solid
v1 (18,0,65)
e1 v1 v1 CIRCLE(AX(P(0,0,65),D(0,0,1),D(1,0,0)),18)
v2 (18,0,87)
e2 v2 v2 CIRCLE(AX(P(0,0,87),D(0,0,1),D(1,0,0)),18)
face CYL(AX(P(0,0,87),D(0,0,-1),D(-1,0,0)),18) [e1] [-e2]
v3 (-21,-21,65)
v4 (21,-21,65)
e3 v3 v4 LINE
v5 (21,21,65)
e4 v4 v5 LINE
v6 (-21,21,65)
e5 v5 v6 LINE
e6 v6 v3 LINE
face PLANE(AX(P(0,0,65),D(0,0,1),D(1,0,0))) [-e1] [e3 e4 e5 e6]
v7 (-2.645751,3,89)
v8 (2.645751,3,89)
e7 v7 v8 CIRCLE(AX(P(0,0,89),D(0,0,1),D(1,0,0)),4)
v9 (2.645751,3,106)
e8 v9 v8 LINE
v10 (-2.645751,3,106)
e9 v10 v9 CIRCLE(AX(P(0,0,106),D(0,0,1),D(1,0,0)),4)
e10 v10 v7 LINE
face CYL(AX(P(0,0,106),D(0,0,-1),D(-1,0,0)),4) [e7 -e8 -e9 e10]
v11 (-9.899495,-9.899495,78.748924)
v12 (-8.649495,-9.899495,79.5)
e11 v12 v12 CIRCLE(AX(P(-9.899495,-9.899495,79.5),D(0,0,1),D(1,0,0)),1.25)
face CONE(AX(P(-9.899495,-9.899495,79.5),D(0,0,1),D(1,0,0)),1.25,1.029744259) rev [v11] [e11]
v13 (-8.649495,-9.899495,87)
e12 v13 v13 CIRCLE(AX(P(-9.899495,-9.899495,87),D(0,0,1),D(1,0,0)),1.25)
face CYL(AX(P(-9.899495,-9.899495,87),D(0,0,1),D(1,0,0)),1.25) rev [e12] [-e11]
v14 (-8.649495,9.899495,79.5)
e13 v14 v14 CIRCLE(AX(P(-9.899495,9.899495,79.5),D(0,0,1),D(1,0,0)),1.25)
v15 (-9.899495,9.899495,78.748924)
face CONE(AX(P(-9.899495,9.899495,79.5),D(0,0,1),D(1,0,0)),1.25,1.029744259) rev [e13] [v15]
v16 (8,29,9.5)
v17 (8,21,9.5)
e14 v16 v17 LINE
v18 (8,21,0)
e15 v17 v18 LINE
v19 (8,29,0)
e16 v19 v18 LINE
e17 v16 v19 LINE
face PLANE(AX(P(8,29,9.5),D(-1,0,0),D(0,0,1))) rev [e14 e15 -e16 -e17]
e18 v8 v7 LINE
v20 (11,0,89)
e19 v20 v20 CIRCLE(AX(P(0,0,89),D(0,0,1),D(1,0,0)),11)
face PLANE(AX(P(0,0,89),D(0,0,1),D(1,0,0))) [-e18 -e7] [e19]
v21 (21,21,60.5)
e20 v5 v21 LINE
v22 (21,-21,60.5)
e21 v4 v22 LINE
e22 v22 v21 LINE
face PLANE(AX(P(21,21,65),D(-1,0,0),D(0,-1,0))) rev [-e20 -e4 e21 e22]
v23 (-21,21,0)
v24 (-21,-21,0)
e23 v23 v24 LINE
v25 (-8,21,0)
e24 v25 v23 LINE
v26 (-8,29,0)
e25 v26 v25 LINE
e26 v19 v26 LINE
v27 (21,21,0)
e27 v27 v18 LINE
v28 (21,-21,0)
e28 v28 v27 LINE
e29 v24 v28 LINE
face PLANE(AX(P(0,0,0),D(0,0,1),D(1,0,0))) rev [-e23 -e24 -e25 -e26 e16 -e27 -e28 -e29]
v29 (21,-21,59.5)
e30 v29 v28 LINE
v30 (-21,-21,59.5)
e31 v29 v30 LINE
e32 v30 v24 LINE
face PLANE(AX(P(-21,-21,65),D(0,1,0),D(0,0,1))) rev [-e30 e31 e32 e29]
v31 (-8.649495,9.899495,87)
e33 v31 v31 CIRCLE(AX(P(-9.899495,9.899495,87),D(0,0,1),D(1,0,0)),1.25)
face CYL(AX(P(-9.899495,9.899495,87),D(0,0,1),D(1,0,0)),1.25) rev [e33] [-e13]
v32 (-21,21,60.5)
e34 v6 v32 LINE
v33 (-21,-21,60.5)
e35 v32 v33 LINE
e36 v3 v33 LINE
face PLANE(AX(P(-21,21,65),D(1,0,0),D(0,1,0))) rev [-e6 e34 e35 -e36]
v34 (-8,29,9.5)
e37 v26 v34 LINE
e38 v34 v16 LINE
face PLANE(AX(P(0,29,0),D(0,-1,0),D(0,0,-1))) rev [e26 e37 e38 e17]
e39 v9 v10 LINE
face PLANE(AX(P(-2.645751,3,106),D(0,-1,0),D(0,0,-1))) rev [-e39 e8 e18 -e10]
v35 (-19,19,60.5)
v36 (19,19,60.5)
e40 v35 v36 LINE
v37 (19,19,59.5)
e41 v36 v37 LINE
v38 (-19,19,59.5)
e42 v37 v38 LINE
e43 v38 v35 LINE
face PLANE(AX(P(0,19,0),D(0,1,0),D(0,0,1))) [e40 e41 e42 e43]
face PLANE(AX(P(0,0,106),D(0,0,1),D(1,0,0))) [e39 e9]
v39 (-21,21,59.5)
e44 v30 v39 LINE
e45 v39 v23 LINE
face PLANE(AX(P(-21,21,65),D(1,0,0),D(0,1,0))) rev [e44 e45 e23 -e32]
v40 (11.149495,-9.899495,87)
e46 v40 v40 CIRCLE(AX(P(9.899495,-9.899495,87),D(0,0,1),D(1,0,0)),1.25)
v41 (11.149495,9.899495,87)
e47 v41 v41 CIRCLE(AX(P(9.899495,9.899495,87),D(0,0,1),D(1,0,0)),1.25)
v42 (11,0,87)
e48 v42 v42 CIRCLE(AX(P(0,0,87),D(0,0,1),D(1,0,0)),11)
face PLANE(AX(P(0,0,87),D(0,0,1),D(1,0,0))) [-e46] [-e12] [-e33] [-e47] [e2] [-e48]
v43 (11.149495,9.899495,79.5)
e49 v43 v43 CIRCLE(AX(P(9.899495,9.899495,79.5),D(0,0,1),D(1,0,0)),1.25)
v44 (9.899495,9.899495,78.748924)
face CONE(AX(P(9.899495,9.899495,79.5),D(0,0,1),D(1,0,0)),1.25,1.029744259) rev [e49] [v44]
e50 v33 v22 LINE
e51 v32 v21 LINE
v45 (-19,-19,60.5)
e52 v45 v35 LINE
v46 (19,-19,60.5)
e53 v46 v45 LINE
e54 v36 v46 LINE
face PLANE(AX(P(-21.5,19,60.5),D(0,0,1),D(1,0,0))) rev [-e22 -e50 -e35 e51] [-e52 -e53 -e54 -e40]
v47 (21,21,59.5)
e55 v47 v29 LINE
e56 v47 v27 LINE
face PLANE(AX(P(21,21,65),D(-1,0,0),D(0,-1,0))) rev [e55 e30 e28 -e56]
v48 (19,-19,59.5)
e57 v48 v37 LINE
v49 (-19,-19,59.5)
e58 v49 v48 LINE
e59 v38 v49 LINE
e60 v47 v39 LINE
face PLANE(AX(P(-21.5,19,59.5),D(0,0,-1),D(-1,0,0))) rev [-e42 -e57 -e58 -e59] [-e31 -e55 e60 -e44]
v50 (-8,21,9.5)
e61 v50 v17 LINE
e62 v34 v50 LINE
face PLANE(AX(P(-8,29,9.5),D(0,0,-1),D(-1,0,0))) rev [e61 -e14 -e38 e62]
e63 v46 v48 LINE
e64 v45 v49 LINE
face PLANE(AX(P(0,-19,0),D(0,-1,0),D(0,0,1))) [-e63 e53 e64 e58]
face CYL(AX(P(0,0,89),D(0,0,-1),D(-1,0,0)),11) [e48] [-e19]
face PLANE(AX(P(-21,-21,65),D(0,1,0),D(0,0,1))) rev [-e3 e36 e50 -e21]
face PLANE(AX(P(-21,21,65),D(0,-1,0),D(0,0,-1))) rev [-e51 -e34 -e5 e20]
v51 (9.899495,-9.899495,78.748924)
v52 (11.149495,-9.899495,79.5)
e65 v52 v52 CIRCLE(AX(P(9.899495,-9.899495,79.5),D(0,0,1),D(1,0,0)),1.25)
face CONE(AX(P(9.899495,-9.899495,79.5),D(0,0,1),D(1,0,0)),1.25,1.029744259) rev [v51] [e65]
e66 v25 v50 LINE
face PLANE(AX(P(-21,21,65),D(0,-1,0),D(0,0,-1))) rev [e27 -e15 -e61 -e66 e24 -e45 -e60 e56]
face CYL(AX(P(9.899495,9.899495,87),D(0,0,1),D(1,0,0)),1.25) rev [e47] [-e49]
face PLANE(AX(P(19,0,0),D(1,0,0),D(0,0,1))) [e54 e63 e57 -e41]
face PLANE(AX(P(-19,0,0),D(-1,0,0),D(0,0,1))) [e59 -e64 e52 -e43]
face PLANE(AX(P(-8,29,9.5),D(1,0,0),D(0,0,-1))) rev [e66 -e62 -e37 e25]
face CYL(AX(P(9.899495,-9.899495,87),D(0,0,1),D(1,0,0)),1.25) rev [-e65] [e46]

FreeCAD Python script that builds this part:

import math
import FreeCAD as App
import Part
import Sketcher
Q = App.Units.Quantity


def add_polygon(sketch, points):
    """Adds a closed chain of lines whose ends are joined by coincident constraints."""
    first, n = sketch.GeometryCount, len(points)
    for a, b in zip(points, points[1:] + points[:1]):
        sketch.addGeometry(Part.LineSegment(App.Vector(*a, 0), App.Vector(*b, 0)), False)
    for i in range(n):
        sketch.addConstraint(Sketcher.Constraint("Coincident", first + i, 2, first + (i + 1) % n, 1))

doc = App.newDocument("Part")
params = doc.addObject("Spreadsheet::Sheet", "Params")
for row, (alias, value) in enumerate([
    ("sketch1_width", "42 mm"),
    ("pad1_length", "65 mm"),
    ("sketch2_diameter", "36 mm"),
    ("pad2_length", "22 mm"),
    ("sketch3_radius", "4 mm"),
    ("pad3_length", "19 mm"),
    ("sketch4_diameter", "22 mm"),
    ("pad4_length", "2 mm"),
    ("sketch5_width", "43 mm"),
    ("sketch5_height", "1 mm"),
    ("pocket1_length", "2 mm"),
    ("sketch6_diameter", "2.5 mm"),
    ("hole_diameter", "2.5 mm"),
    ("hole_depth", "7.5 mm"),
    ("sketch7_width", "16 mm"),
    ("sketch7_height", "9.5 mm"),
    ("pad5_length", "8 mm"),
], start=1):
    params.set(f"A{row}", alias)
    params.set(f"B{row}", "=" + value)
    params.setAlias(f"B{row}", alias)

body = doc.addObject("PartDesign::Body", "Body")

# Sketch on XY plane
sketch1 = body.newObject("Sketcher::SketchObject", "Sketch")
sketch1.AttachmentSupport = (doc.getObject("XY_Plane"), [""])
sketch1.MapMode = "FlatFace"
add_polygon(sketch1, [(-21, 21), (-21, -21), (21, -21), (21, 21)])  # lines 0-3
sketch1.addConstraint(Sketcher.Constraint("Vertical", 0))
sketch1.addConstraint(Sketcher.Constraint("Horizontal", 1))
sketch1.addConstraint(Sketcher.Constraint("Vertical", 2))
sketch1.addConstraint(Sketcher.Constraint("Horizontal", 3))
sketch1.addConstraint(Sketcher.Constraint("Symmetric", 0, 2, 2, 2, -1, 1))
sketch1.addConstraint(Sketcher.Constraint("Equal", 3, 0))
sketch1.addConstraint(Sketcher.Constraint("DistanceX", 1, 1, 1, 2, Q("42 mm")))
sketch1.setExpression("Constraints[10]", "Params.sketch1_width")
pad1 = body.newObject("PartDesign::Pad", "Pad")
pad1.Profile = sketch1
pad1.setExpression("Length", "Params.pad1_length")

# Sketch on XY plane
sketch2 = body.newObject("Sketcher::SketchObject", "Sketch001")
sketch2.AttachmentSupport = (doc.getObject("XY_Plane"), [""])
sketch2.MapMode = "FlatFace"
sketch2.AttachmentOffset = App.Placement(App.Vector(0, 0, 65), App.Rotation())
sketch2.addGeometry(Part.Circle(App.Vector(0, 0, 0), App.Vector(0, 0, 1), 18), False)
sketch2.addConstraint(Sketcher.Constraint("Coincident", 0, 3, -1, 1))
sketch2.addConstraint(Sketcher.Constraint("Diameter", 0, Q("36 mm")))
sketch2.setExpression("Constraints[1]", "Params.sketch2_diameter")
pad2 = body.newObject("PartDesign::Pad", "Pad001")
pad2.Profile = sketch2
pad2.setExpression("Length", "Params.pad2_length")

# Sketch on XY plane
sketch3 = body.newObject("Sketcher::SketchObject", "Sketch002")
sketch3.AttachmentSupport = (doc.getObject("XY_Plane"), [""])
sketch3.MapMode = "FlatFace"
sketch3.AttachmentOffset = App.Placement(App.Vector(0, 0, 87), App.Rotation())
sketch3.addGeometry(Part.LineSegment(App.Vector(2.6, 3, 0), App.Vector(-2.6, 3, 0)), False)
sketch3.addGeometry(Part.ArcOfCircle(Part.Circle(App.Vector(0, 0, 0), App.Vector(0, 0, 1), 4), math.radians(131), math.radians(409)), False)
sketch3.addConstraint(Sketcher.Constraint("Coincident", 0, 1, 1, 2))
sketch3.addConstraint(Sketcher.Constraint("Coincident", 1, 1, 0, 2))
sketch3.addConstraint(Sketcher.Constraint("Horizontal", 0))
sketch3.addConstraint(Sketcher.Constraint("Coincident", 1, 3, -1, 1))
sketch3.addConstraint(Sketcher.Constraint("Radius", 1, Q("4 mm")))
sketch3.addConstraint(Sketcher.Constraint("DistanceY", -1, 1, 0, 1, Q("3 mm")))
sketch3.setExpression("Constraints[4]", "Params.sketch3_radius")
pad3 = body.newObject("PartDesign::Pad", "Pad002")
pad3.Profile = sketch3
pad3.setExpression("Length", "Params.pad3_length")

# Sketch on XY plane
sketch4 = body.newObject("Sketcher::SketchObject", "Sketch003")
sketch4.AttachmentSupport = (doc.getObject("XY_Plane"), [""])
sketch4.MapMode = "FlatFace"
sketch4.AttachmentOffset = App.Placement(App.Vector(0, 0, 87), App.Rotation())
sketch4.addGeometry(Part.Circle(App.Vector(0, 0, 0), App.Vector(0, 0, 1), 11), False)
sketch4.addConstraint(Sketcher.Constraint("Coincident", 0, 3, -1, 1))
sketch4.addConstraint(Sketcher.Constraint("Diameter", 0, Q("22 mm")))
sketch4.setExpression("Constraints[1]", "Params.sketch4_diameter")
pad4 = body.newObject("PartDesign::Pad", "Pad003")
pad4.Profile = sketch4
pad4.setExpression("Length", "Params.pad4_length")

# Sketch on XZ plane
sketch5 = body.newObject("Sketcher::SketchObject", "Sketch004")
sketch5.AttachmentSupport = (doc.getObject("XZ_Plane"), [""])
sketch5.MapMode = "FlatFace"
sketch5.AttachmentOffset = App.Placement(App.Vector(0, 0, -21), App.Rotation())
add_polygon(sketch5, [(-21.5, 59.5), (-21.5, 60.5), (21.5, 60.5), (21.5, 59.5)])  # lines 0-3
sketch5.addConstraint(Sketcher.Constraint("Vertical", 0))
sketch5.addConstraint(Sketcher.Constraint("Horizontal", 1))
sketch5.addConstraint(Sketcher.Constraint("Vertical", 2))
sketch5.addConstraint(Sketcher.Constraint("Horizontal", 3))
sketch5.addConstraint(Sketcher.Constraint("DistanceX", 1, 1, 1, 2, Q("43 mm")))
sketch5.addConstraint(Sketcher.Constraint("DistanceY", 0, 1, 0, 2, Q("1 mm")))
sketch5.addConstraint(Sketcher.Constraint("DistanceX", 0, 2, -1, 1, Q("21.5 mm")))
sketch5.addConstraint(Sketcher.Constraint("DistanceY", -1, 1, 0, 2, Q("60.5 mm")))
sketch5.setExpression("Constraints[8]", "Params.sketch5_width")
sketch5.setExpression("Constraints[9]", "Params.sketch5_height")
pocket1 = body.newObject("PartDesign::Pocket", "Pocket")
pocket1.Profile = sketch5
pocket1.setExpression("Length", "Params.pocket1_length")
pocket1.Reversed = True
doc.recompute()

polarpattern = body.newObject("PartDesign::PolarPattern", "PolarPattern")
polarpattern.Originals = [pocket1]
polarpattern.Axis = (doc.getObject("Z_Axis"), [""])
polarpattern.Angle = 360
polarpattern.Occurrences = 4
body.Tip = polarpattern

# Sketch on XY plane
sketch6 = body.newObject("Sketcher::SketchObject", "Sketch005")
sketch6.AttachmentSupport = (doc.getObject("XY_Plane"), [""])
sketch6.MapMode = "FlatFace"
sketch6.AttachmentOffset = App.Placement(App.Vector(0, 0, 87), App.Rotation())
sketch6.addGeometry(Part.Circle(App.Vector(-9.9, 9.9, 0), App.Vector(0, 0, 1), 1.2), False)
sketch6.addGeometry(Part.Circle(App.Vector(-9.9, -9.9, 0), App.Vector(0, 0, 1), 1.2), False)
sketch6.addGeometry(Part.Circle(App.Vector(9.9, 9.9, 0), App.Vector(0, 0, 1), 1.2), False)
sketch6.addGeometry(Part.Circle(App.Vector(9.9, -9.9, 0), App.Vector(0, 0, 1), 1.2), False)
sketch6.addConstraint(Sketcher.Constraint("Equal", 0, 1))
sketch6.addConstraint(Sketcher.Constraint("Equal", 1, 2))
sketch6.addConstraint(Sketcher.Constraint("Equal", 2, 3))
sketch6.addConstraint(Sketcher.Constraint("Symmetric", 1, 3, 2, 3, -1, 1))
sketch6.addConstraint(Sketcher.Constraint("Symmetric", 0, 3, 3, 3, -1, 1))
sketch6.addConstraint(Sketcher.Constraint("Symmetric", 0, 3, 2, 3, -2))
sketch6.addConstraint(Sketcher.Constraint("Diameter", 0, Q("2.5 mm")))
sketch6.addConstraint(Sketcher.Constraint("DistanceY", 1, 3, 0, 3, Q("19.79899 mm")))
sketch6.addConstraint(Sketcher.Constraint("DistanceX", 0, 3, 2, 3, Q("19.79899 mm")))
sketch6.setExpression("Constraints[6]", "Params.sketch6_diameter")
doc.recompute()
hole = body.newObject("PartDesign::Hole", "Hole")
hole.Profile = sketch6
hole.ThreadType = "None"
hole.setExpression("Diameter", "Params.hole_diameter")
hole.DepthType = "Dimension"
hole.setExpression("Depth", "Params.hole_depth")
hole.DrillPoint = "Angled"
hole.DrillPointAngle = 118

# Sketch on XZ plane
sketch7 = body.newObject("Sketcher::SketchObject", "Sketch006")
sketch7.AttachmentSupport = (doc.getObject("XZ_Plane"), [""])
sketch7.MapMode = "FlatFace"
sketch7.AttachmentOffset = App.Placement(App.Vector(0, 0, -21), App.Rotation())
add_polygon(sketch7, [(-8, 0), (-8, 10), (8, 10), (8, 0)])  # lines 0-3
sketch7.addConstraint(Sketcher.Constraint("Vertical", 0))
sketch7.addConstraint(Sketcher.Constraint("Horizontal", 1))
sketch7.addConstraint(Sketcher.Constraint("Vertical", 2))
sketch7.addConstraint(Sketcher.Constraint("Horizontal", 3))
sketch7.addConstraint(Sketcher.Constraint("Symmetric", 2, 2, 3, 2, -1, 1))
sketch7.addConstraint(Sketcher.Constraint("DistanceX", 1, 1, 1, 2, Q("16 mm")))
sketch7.addConstraint(Sketcher.Constraint("DistanceY", 0, 1, 0, 2, Q("9.5 mm")))
sketch7.setExpression("Constraints[9]", "Params.sketch7_width")
sketch7.setExpression("Constraints[10]", "Params.sketch7_height")
pad5 = body.newObject("PartDesign::Pad", "Pad004")
pad5.Profile = sketch7
pad5.setExpression("Length", "Params.pad5_length")
pad5.Reversed = True

doc.recompute()
